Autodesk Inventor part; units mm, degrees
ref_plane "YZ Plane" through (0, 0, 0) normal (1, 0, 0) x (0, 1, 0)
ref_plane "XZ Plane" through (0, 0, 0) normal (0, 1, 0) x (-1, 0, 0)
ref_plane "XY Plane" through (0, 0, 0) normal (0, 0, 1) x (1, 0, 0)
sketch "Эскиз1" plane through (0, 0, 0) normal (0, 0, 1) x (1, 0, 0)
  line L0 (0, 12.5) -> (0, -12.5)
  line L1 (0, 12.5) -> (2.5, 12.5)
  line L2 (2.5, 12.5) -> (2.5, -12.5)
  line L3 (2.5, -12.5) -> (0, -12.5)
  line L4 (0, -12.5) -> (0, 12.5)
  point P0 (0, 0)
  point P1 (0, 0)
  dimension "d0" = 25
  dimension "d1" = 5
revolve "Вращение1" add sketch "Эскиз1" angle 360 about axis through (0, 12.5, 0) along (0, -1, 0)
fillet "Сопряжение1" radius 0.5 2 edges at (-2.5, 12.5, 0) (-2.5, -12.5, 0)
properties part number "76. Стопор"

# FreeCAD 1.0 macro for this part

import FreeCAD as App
import Part
import Sketcher

V = App.Vector


def edges_at(feature, points):
    """Names of the edges that pass closest to the given points."""
    edges = feature.Shape.Edges
    near = lambda p: min(range(len(edges)), key=lambda i: edges[i].distToShape(Part.Vertex(*p))[0])
    return sorted({f"Edge{near(p) + 1}" for p in points})

doc = App.newDocument("Part")
params = doc.addObject("Spreadsheet::Sheet", "Params")
for row, (alias, value) in enumerate([
    ("sketch1_height", "25 mm"),
    ("sketch1_width", "2.5 mm"),
    ("revolution_angle", "360 deg"),
    ("fillet_radius", "0.5 mm"),
], start=1):
    params.set(f"A{row}", alias)
    params.set(f"B{row}", "=" + value)
    params.setAlias(f"B{row}", alias)

body = doc.addObject("PartDesign::Body", "Body")

sketch1 = body.newObject("Sketcher::SketchObject", "Sketch")
sketch1.AttachmentSupport = (doc.getObject("XY_Plane"), [""])
sketch1.MapMode = "FlatFace"
sketch1.addGeometry([
    Part.LineSegment(V(2.5, 12.5, 0), V(0, 12.5, 0)),
    Part.LineSegment(V(0, 12.5, 0), V(0, -12.5, 0)),
    Part.LineSegment(V(0, -12.5, 0), V(2.5, -12.5, 0)),
    Part.LineSegment(V(2.5, -12.5, 0), V(2.5, 12.5, 0)),
], False)
sketch1.addConstraint([
    Sketcher.Constraint("Coincident", 0, 2, 1, 1),
    Sketcher.Constraint("Coincident", 1, 2, 2, 1),
    Sketcher.Constraint("Coincident", 2, 2, 3, 1),
    Sketcher.Constraint("Coincident", 3, 2, 0, 1),
    Sketcher.Constraint("Horizontal", 0),
    Sketcher.Constraint("Vertical", 1),
    Sketcher.Constraint("Horizontal", 2),
    Sketcher.Constraint("Vertical", 3),
    Sketcher.Constraint("Symmetric", 0, 2, 1, 2, -1, 1),
    Sketcher.Constraint("DistanceY", 1, 2, 1, 1, 25.0),
    Sketcher.Constraint("DistanceX", 0, 2, 0, 1, 2.5),
])
sketch1.setExpression("Constraints[9]", "Params.sketch1_height")
sketch1.setExpression("Constraints[10]", "Params.sketch1_width")
revolution = body.newObject("PartDesign::Revolution", "Revolution")
revolution.Profile = sketch1
revolution.ReferenceAxis = (sketch1, ["V_Axis"])
revolution.setExpression("Angle", "Params.revolution_angle")
doc.recompute()

fillet = body.newObject("PartDesign::Fillet", "Fillet")
fillet.Base = (revolution, edges_at(revolution, [(-2.5, 12.5, 0), (-2.5, -12.5, 0)]))
fillet.setExpression("Radius", "Params.fillet_radius")

doc.recompute()
